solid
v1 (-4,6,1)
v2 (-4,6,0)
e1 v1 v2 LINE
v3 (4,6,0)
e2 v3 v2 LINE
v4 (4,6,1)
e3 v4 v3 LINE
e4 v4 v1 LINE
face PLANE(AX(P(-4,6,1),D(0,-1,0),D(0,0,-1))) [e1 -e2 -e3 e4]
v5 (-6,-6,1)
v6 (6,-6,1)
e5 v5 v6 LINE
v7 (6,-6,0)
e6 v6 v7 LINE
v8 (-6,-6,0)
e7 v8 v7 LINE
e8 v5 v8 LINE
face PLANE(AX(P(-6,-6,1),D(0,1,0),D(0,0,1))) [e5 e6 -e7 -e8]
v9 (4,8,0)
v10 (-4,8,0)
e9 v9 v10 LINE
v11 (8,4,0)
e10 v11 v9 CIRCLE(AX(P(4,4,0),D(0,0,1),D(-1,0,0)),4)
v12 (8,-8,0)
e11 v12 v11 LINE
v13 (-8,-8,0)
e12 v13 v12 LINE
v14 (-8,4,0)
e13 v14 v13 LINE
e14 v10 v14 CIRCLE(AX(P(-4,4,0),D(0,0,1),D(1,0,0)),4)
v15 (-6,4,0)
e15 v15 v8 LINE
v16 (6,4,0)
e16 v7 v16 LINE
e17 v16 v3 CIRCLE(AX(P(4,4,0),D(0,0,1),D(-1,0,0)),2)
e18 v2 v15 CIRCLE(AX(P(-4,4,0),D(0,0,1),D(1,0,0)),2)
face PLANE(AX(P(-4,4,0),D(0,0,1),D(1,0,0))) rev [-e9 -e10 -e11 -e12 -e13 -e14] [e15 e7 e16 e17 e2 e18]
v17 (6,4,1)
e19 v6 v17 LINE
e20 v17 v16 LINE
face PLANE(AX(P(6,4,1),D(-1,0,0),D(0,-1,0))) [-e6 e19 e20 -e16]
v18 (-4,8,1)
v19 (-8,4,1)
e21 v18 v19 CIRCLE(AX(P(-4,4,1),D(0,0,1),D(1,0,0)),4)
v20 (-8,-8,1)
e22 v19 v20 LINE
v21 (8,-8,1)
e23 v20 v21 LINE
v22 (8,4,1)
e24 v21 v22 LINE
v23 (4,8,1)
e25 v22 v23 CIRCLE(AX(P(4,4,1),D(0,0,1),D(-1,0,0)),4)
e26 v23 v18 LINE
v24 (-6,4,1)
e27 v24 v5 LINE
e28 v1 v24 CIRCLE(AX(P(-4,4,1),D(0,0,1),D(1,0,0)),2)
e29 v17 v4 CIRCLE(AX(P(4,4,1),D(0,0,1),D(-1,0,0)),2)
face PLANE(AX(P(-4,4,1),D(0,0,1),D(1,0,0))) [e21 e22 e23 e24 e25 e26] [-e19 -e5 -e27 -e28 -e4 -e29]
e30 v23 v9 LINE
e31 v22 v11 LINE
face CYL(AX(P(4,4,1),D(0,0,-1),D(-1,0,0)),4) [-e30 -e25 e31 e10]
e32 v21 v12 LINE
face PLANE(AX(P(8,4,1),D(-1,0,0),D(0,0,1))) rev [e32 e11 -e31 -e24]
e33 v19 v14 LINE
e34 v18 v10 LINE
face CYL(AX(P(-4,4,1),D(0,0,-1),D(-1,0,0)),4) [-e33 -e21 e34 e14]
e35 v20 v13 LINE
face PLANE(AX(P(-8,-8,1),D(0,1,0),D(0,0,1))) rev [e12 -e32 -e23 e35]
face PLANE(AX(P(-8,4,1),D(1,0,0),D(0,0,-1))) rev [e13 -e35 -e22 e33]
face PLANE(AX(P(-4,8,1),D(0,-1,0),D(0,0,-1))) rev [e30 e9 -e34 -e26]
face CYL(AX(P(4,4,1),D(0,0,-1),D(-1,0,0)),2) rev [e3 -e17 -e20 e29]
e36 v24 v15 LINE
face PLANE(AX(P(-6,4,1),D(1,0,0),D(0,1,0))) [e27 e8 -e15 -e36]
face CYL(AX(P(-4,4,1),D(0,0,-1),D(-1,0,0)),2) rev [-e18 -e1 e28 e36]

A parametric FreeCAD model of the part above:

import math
import FreeCAD as App
import Part
import Sketcher
from FreeCAD import Vector

doc = App.newDocument("Part")
body = doc.addObject("PartDesign::Body", "Body")

sketch1 = body.newObject("Sketcher::SketchObject", "Sketch")
sketch1.AttachmentSupport = (doc.getObject("XY_Plane"), [""])
sketch1.MapMode = "FlatFace"
sketch1.addGeometry([
    Part.LineSegment(Vector(4, 8, 0), Vector(-4, 8, 0)),
    Part.ArcOfCircle(Part.Circle(Vector(-4, 4, 0), Vector(0, 0, 1), 4), math.radians(90), math.radians(180)),
    Part.LineSegment(Vector(-8, 4, 0), Vector(-8, -8, 0)),
    Part.LineSegment(Vector(-8, -8, 0), Vector(8, -8, 0)),
    Part.LineSegment(Vector(8, -8, 0), Vector(8, 4, 0)),
    Part.ArcOfCircle(Part.Circle(Vector(4, 4, 0), Vector(0, 0, 1), 4), math.radians(0), math.radians(90)),
    Part.LineSegment(Vector(-4, 6, 0), Vector(4, 6, 0)),
    Part.ArcOfCircle(Part.Circle(Vector(4, 4, 0), Vector(0, 0, 1), 2), math.radians(0), math.radians(90)),
    Part.LineSegment(Vector(6, 4, 0), Vector(6, -6, 0)),
    Part.LineSegment(Vector(6, -6, 0), Vector(-6, -6, 0)),
    Part.LineSegment(Vector(-6, -6, 0), Vector(-6, 4, 0)),
    Part.ArcOfCircle(Part.Circle(Vector(-4, 4, 0), Vector(0, 0, 1), 2), math.radians(90), math.radians(180)),
], False)
sketch1.addConstraint([
    Sketcher.Constraint("Tangent", 0, 2, 1, 1),
    Sketcher.Constraint("Tangent", 1, 2, 2, 1),
    Sketcher.Constraint("Coincident", 2, 2, 3, 1),
    Sketcher.Constraint("Coincident", 3, 2, 4, 1),
    Sketcher.Constraint("Tangent", 4, 2, 5, 1),
    Sketcher.Constraint("Tangent", 5, 2, 0, 1),
    Sketcher.Constraint("Tangent", 6, 2, 7, 2),
    Sketcher.Constraint("Tangent", 7, 1, 8, 1),
    Sketcher.Constraint("Coincident", 8, 2, 9, 1),
    Sketcher.Constraint("Coincident", 9, 2, 10, 1),
    Sketcher.Constraint("Tangent", 10, 2, 11, 2),
    Sketcher.Constraint("Tangent", 11, 1, 6, 1),
    Sketcher.Constraint("Horizontal", 0),
    Sketcher.Constraint("Vertical", 2),
    Sketcher.Constraint("Horizontal", 3),
    Sketcher.Constraint("Vertical", 4),
    Sketcher.Constraint("Horizontal", 6),
    Sketcher.Constraint("Vertical", 8),
    Sketcher.Constraint("Horizontal", 9),
    Sketcher.Constraint("Vertical", 10),
    Sketcher.Constraint("Coincident", 7, 3, 5, 3),
    Sketcher.Constraint("Coincident", 11, 3, 1, 3),
    Sketcher.Constraint("Equal", 1, 5),
    Sketcher.Constraint("Equal", 9, 2),
    Sketcher.Constraint("Radius", 1, 4.0),
    Sketcher.Constraint("Radius", 7, 2.0),
    Sketcher.Constraint("DistanceX", 0, 2, 0, 1, 8.0),
    Sketcher.Constraint("DistanceY", 8, 2, 8, 1, 10.0),
    Sketcher.Constraint("DistanceX", 1, 3, -1, 1, 4.0),
    Sketcher.Constraint("DistanceY", -1, 1, 1, 3, 4.0),
])
pad1 = body.newObject("PartDesign::Pad", "Pad")
pad1.Profile = sketch1
pad1.Length = 1

doc.recompute()
